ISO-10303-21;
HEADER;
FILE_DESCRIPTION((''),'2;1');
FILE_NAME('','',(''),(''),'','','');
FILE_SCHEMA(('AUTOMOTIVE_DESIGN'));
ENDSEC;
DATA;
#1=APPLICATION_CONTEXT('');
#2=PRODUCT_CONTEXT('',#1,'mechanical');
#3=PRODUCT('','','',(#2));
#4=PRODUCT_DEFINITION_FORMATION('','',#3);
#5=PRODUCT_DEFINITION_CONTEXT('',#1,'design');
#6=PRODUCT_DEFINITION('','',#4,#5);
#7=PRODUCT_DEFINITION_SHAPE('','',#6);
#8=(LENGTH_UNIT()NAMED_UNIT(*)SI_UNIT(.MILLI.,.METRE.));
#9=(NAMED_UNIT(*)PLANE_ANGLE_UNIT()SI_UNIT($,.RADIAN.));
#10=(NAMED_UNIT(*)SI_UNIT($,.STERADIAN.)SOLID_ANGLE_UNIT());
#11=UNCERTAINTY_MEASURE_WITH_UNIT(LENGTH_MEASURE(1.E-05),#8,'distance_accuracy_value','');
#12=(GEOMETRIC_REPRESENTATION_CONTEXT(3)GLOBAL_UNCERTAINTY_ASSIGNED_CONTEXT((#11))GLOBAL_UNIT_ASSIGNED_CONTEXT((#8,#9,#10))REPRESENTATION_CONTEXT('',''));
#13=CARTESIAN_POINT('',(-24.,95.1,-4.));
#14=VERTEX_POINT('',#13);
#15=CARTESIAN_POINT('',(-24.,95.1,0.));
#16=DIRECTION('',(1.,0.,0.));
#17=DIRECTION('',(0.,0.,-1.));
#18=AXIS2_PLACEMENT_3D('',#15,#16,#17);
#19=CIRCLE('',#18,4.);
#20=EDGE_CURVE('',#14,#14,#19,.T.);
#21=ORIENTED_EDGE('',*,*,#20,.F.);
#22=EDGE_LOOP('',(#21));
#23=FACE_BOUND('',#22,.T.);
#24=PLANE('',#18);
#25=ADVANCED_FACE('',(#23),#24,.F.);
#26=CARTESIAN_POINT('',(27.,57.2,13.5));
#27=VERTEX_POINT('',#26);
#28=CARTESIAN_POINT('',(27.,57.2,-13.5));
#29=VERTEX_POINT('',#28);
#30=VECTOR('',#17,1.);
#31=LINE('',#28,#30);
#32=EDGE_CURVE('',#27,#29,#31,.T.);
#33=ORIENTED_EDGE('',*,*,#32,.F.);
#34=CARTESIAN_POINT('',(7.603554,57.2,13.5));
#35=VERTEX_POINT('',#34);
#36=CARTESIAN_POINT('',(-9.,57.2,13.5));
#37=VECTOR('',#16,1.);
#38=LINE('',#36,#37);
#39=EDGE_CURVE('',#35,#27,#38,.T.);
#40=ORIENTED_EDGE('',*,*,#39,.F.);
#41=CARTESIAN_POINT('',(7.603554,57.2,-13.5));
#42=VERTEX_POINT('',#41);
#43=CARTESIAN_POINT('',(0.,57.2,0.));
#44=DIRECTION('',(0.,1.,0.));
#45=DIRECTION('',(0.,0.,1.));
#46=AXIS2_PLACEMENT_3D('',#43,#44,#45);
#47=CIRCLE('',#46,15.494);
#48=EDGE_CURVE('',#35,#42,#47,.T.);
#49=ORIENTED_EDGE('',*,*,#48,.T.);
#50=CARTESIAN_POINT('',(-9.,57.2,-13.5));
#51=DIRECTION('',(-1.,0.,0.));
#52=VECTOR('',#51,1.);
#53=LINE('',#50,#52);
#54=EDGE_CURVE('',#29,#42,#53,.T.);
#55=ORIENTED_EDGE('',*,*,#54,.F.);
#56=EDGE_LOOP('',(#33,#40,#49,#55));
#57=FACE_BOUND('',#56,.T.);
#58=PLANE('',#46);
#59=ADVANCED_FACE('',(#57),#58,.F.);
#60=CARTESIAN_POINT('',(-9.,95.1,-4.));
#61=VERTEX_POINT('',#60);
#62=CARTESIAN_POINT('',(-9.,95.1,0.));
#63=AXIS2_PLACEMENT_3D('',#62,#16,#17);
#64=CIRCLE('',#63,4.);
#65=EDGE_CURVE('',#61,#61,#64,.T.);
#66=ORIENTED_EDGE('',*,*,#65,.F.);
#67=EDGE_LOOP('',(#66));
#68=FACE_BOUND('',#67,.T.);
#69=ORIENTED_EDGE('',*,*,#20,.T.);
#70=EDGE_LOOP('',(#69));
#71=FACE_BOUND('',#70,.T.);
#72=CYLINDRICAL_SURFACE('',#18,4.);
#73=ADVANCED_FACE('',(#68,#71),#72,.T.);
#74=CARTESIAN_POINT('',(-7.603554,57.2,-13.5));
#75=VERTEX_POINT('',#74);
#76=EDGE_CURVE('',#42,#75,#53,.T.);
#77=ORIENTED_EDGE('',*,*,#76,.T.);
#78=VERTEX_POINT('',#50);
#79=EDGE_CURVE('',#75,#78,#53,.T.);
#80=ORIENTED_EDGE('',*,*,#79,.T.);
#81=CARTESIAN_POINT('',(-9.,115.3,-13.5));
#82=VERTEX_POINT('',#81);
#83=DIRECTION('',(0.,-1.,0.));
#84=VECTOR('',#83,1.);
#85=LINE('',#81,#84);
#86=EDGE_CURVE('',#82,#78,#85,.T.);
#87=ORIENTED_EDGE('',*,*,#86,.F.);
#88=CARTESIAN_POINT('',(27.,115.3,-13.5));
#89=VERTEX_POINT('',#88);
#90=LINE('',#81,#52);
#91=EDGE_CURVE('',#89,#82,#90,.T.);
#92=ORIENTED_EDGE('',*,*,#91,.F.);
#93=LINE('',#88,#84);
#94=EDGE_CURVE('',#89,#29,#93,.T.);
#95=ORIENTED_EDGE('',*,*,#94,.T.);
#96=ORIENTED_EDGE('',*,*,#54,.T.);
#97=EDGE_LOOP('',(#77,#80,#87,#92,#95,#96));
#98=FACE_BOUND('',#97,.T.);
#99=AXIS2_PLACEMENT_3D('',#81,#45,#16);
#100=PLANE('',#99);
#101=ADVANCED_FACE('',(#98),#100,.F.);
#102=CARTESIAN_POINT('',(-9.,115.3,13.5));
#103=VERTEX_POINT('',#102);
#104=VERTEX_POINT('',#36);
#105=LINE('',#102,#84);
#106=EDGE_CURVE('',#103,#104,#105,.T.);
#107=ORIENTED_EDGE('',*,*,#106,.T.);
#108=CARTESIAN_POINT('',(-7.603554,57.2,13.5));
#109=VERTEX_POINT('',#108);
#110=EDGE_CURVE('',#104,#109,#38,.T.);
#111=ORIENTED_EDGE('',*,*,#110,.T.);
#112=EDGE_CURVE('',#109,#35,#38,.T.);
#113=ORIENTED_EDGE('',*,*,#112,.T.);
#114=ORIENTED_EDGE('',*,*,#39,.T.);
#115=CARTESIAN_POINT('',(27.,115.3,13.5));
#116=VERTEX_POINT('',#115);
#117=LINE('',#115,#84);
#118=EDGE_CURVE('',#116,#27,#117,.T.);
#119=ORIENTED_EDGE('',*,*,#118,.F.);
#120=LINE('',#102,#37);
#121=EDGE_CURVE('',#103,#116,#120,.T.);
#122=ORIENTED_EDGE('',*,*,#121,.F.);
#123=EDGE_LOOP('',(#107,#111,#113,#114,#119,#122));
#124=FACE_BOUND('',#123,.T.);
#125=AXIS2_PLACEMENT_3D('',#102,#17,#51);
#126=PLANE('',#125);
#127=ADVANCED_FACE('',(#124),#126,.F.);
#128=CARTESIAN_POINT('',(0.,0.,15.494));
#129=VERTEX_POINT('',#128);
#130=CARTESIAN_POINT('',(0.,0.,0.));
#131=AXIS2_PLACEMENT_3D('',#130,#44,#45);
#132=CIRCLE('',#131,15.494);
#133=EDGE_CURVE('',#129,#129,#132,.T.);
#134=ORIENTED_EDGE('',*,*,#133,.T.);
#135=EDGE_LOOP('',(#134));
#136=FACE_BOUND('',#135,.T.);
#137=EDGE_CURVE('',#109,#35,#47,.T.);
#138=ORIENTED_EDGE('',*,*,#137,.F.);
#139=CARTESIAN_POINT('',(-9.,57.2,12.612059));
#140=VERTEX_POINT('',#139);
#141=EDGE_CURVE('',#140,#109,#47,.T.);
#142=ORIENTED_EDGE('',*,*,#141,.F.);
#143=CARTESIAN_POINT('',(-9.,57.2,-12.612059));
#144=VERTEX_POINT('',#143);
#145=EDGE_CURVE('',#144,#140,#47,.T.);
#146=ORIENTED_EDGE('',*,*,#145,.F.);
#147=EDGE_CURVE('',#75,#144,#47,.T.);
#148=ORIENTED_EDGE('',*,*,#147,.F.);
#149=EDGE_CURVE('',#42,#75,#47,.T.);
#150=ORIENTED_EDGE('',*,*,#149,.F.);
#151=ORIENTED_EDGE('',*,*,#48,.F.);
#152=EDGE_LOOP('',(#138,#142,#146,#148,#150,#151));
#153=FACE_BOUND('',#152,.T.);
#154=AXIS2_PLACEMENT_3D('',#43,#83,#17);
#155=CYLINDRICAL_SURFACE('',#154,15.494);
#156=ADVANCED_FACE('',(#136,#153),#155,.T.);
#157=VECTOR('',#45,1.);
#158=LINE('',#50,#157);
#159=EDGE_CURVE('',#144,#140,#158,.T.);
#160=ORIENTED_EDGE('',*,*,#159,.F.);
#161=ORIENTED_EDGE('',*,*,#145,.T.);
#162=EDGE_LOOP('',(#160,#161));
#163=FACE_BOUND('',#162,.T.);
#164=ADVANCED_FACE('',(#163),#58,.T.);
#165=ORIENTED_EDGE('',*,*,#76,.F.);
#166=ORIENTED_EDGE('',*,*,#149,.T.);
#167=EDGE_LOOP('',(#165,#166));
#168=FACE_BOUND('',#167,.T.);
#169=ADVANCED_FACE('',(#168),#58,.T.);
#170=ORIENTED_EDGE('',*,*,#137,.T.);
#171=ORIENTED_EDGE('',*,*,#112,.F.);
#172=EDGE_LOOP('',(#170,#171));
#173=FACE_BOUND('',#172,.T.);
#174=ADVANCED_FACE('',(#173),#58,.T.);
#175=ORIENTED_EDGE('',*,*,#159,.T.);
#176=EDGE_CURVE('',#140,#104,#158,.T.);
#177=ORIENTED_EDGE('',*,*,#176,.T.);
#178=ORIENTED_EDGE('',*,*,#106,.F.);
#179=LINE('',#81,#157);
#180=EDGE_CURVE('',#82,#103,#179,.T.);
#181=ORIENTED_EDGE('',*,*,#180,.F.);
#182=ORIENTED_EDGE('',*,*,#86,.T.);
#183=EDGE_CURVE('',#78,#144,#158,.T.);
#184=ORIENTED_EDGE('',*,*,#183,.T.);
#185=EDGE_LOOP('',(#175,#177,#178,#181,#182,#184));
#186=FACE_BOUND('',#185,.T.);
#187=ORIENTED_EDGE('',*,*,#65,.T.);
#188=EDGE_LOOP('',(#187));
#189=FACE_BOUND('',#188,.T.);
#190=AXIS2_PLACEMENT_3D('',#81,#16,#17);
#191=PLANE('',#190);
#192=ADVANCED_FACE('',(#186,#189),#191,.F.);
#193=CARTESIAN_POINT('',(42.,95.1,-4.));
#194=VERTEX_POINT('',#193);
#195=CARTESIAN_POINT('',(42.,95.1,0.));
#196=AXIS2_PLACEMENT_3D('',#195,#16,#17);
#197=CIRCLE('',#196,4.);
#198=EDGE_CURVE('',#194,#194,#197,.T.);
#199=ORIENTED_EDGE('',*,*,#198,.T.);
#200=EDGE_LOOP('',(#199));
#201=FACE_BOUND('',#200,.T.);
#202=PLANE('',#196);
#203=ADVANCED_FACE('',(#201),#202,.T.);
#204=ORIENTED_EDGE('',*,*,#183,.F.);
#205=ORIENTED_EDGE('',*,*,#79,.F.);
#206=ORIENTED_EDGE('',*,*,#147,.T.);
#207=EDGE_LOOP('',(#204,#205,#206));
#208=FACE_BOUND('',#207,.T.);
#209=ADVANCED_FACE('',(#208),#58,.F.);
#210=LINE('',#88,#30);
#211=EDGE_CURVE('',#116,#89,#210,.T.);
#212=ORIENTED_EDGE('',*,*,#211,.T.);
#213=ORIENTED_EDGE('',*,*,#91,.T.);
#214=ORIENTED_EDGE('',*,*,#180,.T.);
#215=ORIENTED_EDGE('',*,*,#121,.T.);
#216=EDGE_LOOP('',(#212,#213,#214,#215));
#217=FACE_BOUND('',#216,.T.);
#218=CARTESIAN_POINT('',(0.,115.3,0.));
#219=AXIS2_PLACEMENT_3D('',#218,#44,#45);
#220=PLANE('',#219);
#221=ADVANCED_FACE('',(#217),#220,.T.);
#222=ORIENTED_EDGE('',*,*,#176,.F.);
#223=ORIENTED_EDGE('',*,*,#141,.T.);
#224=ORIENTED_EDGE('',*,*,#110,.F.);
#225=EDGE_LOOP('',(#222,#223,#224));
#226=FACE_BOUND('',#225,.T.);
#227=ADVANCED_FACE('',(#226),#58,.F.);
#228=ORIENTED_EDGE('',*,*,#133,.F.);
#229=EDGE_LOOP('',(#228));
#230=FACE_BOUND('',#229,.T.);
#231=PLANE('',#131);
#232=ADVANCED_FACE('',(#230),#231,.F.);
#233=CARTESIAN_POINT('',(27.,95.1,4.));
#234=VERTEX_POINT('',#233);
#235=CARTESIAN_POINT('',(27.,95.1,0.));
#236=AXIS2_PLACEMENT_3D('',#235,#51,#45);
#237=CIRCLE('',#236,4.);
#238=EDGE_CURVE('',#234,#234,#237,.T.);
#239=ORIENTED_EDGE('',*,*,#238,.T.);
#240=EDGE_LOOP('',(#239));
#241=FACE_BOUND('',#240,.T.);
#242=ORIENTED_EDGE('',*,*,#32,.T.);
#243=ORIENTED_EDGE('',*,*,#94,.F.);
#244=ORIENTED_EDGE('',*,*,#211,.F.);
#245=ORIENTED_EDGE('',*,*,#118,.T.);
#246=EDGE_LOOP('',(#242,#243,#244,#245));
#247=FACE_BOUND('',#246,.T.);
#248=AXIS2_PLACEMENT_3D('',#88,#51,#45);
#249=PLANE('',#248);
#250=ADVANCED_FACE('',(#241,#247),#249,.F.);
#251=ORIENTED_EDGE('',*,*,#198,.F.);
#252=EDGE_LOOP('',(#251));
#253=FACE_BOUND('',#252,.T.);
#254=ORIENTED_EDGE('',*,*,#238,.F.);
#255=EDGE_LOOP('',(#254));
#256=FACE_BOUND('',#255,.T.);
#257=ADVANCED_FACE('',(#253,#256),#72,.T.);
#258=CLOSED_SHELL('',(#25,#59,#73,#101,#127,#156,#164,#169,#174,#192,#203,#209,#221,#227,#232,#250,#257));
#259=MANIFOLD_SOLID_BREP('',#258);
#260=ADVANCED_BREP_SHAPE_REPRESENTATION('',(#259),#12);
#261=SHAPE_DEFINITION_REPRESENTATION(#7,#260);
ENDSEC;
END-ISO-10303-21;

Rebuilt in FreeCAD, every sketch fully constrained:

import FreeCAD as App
import Part
import Sketcher


def add_polygon(sketch, points):
    """Adds a closed chain of lines whose ends are joined by coincident constraints."""
    first, n = sketch.GeometryCount, len(points)
    for a, b in zip(points, points[1:] + points[:1]):
        sketch.addGeometry(Part.LineSegment(App.Vector(*a, 0), App.Vector(*b, 0)), False)
    for i in range(n):
        sketch.addConstraint(Sketcher.Constraint("Coincident", first + i, 2, first + (i + 1) % n, 1))

doc = App.newDocument("Part")
body = doc.addObject("PartDesign::Body", "Body")

# Sketch on XZ plane
sketch1 = doc.addObject("Sketcher::SketchObject", "Sketch")
body.addObject(sketch1)
sketch1.AttachmentSupport = (doc.XZ_Plane, [""])
sketch1.MapMode = "FlatFace"
sketch1.addGeometry(Part.Circle(App.Vector(0, 0, 0), App.Vector(0, 0, 1), 15.494), False)
sketch1.addConstraint([
    Sketcher.Constraint("Coincident", 0, 3, -1, 1),
    Sketcher.Constraint("Diameter", 0, 30.988),
])
pad1 = doc.addObject("PartDesign::Pad", "Pad")
body.addObject(pad1)
pad1.Profile = sketch1
pad1.Length = 57.2
pad1.Reversed = True

# Sketch on XZ plane
sketch2 = doc.addObject("Sketcher::SketchObject", "Sketch001")
body.addObject(sketch2)
sketch2.AttachmentSupport = (doc.XZ_Plane, [""])
sketch2.MapMode = "FlatFace"
sketch2.AttachmentOffset = App.Placement(App.Vector(0, 0, -57.2), App.Rotation())
add_polygon(sketch2, [(-9, -13.5), (-9, 13.5), (27, 13.5), (27, -13.5)])  # lines 0-3
sketch2.addConstraint([
    Sketcher.Constraint("Vertical", 0),
    Sketcher.Constraint("Horizontal", 1),
    Sketcher.Constraint("Vertical", 2),
    Sketcher.Constraint("Horizontal", 3),
    Sketcher.Constraint("DistanceX", 1, 1, 1, 2, 36.0),
    Sketcher.Constraint("DistanceY", 0, 1, 0, 2, 27.0),
    Sketcher.Constraint("DistanceX", 0, 2, -1, 1, 9.0),
    Sketcher.Constraint("DistanceY", -1, 1, 0, 2, 13.5),
])
pad2 = doc.addObject("PartDesign::Pad", "Pad001")
body.addObject(pad2)
pad2.Profile = sketch2
pad2.Length = 58.1
pad2.Reversed = True

# Sketch on YZ plane
sketch3 = doc.addObject("Sketcher::SketchObject", "Sketch002")
body.addObject(sketch3)
sketch3.AttachmentSupport = (doc.YZ_Plane, [""])
sketch3.MapMode = "FlatFace"
sketch3.AttachmentOffset = App.Placement(App.Vector(0, 0, 27), App.Rotation())
sketch3.addGeometry(Part.Circle(App.Vector(95.1, 0, 0), App.Vector(0, 0, 1), 4), False)
sketch3.addConstraint([
    Sketcher.Constraint("PointOnObject", 0, 3, -1),
    Sketcher.Constraint("Diameter", 0, 8.0),
    Sketcher.Constraint("DistanceX", -1, 1, 0, 3, 95.1),
])
pad3 = doc.addObject("PartDesign::Pad", "Pad002")
body.addObject(pad3)
pad3.Profile = sketch3
pad3.Type = "TwoLengths"
pad3.Length = 15
pad3.Length2 = 51

doc.recompute()
